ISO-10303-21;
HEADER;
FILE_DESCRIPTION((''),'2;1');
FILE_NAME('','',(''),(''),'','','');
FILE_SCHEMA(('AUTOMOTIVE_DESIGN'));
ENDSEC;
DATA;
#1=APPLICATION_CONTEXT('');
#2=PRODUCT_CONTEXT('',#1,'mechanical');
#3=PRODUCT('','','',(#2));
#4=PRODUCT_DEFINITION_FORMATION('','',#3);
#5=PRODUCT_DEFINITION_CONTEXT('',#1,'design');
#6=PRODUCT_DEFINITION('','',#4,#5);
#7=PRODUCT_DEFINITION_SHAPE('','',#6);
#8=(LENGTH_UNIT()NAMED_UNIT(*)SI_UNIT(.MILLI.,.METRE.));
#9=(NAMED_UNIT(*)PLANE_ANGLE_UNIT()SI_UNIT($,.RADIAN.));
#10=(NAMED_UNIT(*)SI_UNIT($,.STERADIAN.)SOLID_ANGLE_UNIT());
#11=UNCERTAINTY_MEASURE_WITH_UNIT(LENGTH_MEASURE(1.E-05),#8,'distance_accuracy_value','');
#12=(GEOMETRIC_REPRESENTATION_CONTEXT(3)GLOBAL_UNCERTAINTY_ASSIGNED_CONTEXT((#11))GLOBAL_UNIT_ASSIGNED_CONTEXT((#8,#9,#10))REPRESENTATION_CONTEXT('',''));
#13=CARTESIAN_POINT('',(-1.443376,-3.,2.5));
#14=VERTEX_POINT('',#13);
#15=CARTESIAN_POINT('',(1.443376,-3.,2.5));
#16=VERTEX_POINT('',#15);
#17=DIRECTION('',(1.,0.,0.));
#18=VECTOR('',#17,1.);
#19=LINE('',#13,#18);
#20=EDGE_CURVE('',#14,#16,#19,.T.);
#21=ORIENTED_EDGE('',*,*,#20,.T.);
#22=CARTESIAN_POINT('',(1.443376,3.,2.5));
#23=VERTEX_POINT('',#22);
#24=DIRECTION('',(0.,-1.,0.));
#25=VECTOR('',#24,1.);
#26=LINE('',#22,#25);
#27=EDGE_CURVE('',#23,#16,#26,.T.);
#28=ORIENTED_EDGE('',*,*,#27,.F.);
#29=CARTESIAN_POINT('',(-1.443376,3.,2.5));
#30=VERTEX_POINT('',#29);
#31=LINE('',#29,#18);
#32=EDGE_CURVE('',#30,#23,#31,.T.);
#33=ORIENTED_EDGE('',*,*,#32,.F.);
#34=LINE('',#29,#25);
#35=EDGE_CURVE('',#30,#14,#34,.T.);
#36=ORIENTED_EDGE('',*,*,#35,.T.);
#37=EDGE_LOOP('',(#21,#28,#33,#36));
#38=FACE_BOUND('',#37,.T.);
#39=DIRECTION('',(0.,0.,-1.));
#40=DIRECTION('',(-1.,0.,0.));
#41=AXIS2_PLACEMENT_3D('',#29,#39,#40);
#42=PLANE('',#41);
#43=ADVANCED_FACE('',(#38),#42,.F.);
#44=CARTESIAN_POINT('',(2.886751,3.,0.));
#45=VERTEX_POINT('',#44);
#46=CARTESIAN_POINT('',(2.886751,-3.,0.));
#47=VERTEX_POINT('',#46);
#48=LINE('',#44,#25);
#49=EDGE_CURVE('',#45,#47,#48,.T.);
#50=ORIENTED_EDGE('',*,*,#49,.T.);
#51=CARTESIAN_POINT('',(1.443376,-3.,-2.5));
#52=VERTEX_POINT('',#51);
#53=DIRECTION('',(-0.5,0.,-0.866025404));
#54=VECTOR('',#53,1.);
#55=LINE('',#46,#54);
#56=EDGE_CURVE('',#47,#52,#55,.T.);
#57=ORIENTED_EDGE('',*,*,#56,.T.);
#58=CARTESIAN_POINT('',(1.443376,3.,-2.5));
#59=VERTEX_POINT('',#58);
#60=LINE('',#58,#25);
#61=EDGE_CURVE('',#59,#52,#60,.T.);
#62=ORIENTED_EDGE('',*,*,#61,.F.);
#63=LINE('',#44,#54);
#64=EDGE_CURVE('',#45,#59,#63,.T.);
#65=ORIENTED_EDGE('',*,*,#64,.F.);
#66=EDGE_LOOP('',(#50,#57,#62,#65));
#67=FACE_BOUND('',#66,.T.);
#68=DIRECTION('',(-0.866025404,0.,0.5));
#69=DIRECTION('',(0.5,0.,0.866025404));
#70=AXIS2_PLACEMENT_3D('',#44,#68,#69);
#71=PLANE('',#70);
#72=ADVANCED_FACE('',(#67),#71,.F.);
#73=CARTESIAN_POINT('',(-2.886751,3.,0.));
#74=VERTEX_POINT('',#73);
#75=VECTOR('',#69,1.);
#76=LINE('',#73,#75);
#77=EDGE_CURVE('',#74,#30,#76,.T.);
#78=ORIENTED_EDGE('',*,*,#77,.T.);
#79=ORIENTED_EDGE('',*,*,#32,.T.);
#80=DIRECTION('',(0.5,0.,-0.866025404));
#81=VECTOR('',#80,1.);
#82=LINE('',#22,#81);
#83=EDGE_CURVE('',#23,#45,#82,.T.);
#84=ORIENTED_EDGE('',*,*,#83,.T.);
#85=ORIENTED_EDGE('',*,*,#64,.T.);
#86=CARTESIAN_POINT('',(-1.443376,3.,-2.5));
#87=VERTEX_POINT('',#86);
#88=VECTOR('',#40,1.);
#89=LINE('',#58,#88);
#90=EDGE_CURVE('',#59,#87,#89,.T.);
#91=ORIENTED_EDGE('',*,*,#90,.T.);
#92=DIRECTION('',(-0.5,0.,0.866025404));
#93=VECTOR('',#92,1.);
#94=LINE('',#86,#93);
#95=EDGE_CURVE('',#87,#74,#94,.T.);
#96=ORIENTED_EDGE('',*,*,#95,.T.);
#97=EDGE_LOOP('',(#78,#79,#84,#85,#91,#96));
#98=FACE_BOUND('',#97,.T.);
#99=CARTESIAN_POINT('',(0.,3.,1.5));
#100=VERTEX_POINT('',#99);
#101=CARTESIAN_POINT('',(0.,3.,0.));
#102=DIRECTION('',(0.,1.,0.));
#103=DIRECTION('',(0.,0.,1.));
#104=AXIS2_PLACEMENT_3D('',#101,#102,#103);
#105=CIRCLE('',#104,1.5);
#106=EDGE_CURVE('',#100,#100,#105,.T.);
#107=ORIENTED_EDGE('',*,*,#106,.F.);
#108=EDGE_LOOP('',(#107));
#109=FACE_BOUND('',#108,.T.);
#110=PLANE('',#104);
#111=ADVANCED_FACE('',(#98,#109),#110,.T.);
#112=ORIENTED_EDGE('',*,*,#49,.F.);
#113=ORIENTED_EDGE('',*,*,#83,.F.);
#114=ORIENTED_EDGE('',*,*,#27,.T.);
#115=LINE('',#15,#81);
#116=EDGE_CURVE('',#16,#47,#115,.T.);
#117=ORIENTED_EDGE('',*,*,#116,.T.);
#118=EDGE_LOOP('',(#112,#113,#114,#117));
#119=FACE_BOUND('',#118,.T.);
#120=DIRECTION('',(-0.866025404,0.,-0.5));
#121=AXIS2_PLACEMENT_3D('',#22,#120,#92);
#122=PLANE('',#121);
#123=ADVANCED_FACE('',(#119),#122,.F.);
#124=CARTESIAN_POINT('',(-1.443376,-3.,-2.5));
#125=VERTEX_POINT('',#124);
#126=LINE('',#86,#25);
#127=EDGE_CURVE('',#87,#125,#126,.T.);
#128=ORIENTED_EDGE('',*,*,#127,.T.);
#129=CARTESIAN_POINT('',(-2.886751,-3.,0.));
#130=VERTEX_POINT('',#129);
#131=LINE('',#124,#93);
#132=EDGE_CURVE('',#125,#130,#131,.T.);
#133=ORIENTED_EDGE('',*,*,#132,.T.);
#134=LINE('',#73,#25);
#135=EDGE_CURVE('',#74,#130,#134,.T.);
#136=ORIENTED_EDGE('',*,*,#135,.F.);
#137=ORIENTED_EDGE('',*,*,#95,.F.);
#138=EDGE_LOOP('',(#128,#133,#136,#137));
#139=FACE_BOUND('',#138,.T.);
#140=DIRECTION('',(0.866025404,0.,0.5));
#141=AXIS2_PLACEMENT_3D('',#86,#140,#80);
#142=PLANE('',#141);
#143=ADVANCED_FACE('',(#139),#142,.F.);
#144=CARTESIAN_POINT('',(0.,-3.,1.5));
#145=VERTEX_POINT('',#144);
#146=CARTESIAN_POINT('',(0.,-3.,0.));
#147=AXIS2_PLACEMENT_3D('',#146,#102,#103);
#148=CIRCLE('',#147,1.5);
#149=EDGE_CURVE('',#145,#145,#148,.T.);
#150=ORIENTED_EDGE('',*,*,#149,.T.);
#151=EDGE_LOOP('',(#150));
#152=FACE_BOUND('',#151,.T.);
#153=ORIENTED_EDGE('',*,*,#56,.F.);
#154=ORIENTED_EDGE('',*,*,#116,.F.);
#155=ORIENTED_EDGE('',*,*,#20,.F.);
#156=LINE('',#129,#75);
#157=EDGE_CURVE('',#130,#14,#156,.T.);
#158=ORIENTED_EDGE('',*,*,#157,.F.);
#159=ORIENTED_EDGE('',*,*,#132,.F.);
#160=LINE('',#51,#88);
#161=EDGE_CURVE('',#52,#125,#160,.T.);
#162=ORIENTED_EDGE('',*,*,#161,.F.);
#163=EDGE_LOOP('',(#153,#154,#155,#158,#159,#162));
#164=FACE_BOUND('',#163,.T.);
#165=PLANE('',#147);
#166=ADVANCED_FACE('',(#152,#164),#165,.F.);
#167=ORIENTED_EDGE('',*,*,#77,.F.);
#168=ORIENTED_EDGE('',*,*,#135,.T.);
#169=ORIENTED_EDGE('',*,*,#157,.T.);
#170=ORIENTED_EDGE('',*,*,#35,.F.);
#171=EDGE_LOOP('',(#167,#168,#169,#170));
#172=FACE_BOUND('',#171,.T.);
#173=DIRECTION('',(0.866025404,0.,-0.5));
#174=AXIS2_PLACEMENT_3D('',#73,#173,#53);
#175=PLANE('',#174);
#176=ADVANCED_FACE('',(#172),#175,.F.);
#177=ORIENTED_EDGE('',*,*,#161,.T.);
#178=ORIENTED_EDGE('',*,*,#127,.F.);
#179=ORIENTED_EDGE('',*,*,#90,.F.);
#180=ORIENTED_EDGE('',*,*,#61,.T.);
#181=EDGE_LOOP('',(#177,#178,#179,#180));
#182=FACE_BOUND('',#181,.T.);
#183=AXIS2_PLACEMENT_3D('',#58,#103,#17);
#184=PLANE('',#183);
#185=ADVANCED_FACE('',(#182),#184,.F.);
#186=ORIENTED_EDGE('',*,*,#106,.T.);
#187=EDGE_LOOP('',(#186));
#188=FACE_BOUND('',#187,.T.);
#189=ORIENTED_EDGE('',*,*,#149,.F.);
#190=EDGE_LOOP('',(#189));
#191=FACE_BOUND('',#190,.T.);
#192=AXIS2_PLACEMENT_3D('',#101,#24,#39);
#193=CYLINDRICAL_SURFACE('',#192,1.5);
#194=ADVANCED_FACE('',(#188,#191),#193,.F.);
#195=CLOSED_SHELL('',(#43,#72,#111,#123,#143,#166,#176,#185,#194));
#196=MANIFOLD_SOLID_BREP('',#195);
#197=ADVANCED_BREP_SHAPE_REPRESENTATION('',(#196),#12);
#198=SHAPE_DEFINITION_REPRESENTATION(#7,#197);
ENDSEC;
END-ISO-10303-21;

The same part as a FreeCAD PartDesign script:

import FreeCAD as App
import Part
import Sketcher
from FreeCAD import Vector
Q = App.Units.Quantity


def add_polygon(sketch, points):
    """Adds a closed chain of lines whose ends are joined by coincident constraints."""
    first, n = sketch.GeometryCount, len(points)
    for a, b in zip(points, points[1:] + points[:1]):
        sketch.addGeometry(Part.LineSegment(App.Vector(*a, 0), App.Vector(*b, 0)), False)
    for i in range(n):
        sketch.addConstraint(Sketcher.Constraint("Coincident", first + i, 2, first + (i + 1) % n, 1))

doc = App.newDocument("Part")
body = doc.addObject("PartDesign::Body", "Body")

# Sketch on XZ plane
sketch1 = body.newObject("Sketcher::SketchObject", "Sketch")
sketch1.AttachmentSupport = (doc.getObject("XZ_Plane"), [""])
sketch1.MapMode = "FlatFace"
add_polygon(sketch1, [(1.4, 2.5), (2.9, 0), (1.4, -2.5), (-1.4, -2.5), (-2.9, 0), (-1.4, 2.5)])  # lines 0-5
sketch1.addGeometry(Part.Circle(Vector(0, 0, 0), Vector(0, 0, 1), 1.5), False)  # 6
sketch1.addConstraint(Sketcher.Constraint("Horizontal", 2))
sketch1.addConstraint(Sketcher.Constraint("Horizontal", 5))
sketch1.addConstraint(Sketcher.Constraint("Coincident", 6, 3, -1, 1))
sketch1.addConstraint(Sketcher.Constraint("Symmetric", 0, 2, 3, 2, -1, 1))
sketch1.addConstraint(Sketcher.Constraint("Symmetric", 1, 2, 4, 2, -1, 1))
sketch1.addConstraint(Sketcher.Constraint("PointOnObject", 0, 2, -1))
sketch1.addConstraint(Sketcher.Constraint("Parallel", 0, 3))
sketch1.addConstraint(Sketcher.Constraint("Vertical", 2, 2, 4, 2))
sketch1.addConstraint(Sketcher.Constraint("Diameter", 6, Q("3 mm")))
sketch1.addConstraint(Sketcher.Constraint("Angle", 0, Q("-60 deg")))
sketch1.addConstraint(Sketcher.Constraint("DistanceY", 2, 2, 4, 2, Q("5 mm")))
sketch1.addConstraint(Sketcher.Constraint("DistanceX", 2, 2, 2, 1, Q("2.886751 mm")))
pad1 = body.newObject("PartDesign::Pad", "Pad")
pad1.Profile = sketch1
pad1.Length = 6
pad1.Midplane = True

doc.recompute()
